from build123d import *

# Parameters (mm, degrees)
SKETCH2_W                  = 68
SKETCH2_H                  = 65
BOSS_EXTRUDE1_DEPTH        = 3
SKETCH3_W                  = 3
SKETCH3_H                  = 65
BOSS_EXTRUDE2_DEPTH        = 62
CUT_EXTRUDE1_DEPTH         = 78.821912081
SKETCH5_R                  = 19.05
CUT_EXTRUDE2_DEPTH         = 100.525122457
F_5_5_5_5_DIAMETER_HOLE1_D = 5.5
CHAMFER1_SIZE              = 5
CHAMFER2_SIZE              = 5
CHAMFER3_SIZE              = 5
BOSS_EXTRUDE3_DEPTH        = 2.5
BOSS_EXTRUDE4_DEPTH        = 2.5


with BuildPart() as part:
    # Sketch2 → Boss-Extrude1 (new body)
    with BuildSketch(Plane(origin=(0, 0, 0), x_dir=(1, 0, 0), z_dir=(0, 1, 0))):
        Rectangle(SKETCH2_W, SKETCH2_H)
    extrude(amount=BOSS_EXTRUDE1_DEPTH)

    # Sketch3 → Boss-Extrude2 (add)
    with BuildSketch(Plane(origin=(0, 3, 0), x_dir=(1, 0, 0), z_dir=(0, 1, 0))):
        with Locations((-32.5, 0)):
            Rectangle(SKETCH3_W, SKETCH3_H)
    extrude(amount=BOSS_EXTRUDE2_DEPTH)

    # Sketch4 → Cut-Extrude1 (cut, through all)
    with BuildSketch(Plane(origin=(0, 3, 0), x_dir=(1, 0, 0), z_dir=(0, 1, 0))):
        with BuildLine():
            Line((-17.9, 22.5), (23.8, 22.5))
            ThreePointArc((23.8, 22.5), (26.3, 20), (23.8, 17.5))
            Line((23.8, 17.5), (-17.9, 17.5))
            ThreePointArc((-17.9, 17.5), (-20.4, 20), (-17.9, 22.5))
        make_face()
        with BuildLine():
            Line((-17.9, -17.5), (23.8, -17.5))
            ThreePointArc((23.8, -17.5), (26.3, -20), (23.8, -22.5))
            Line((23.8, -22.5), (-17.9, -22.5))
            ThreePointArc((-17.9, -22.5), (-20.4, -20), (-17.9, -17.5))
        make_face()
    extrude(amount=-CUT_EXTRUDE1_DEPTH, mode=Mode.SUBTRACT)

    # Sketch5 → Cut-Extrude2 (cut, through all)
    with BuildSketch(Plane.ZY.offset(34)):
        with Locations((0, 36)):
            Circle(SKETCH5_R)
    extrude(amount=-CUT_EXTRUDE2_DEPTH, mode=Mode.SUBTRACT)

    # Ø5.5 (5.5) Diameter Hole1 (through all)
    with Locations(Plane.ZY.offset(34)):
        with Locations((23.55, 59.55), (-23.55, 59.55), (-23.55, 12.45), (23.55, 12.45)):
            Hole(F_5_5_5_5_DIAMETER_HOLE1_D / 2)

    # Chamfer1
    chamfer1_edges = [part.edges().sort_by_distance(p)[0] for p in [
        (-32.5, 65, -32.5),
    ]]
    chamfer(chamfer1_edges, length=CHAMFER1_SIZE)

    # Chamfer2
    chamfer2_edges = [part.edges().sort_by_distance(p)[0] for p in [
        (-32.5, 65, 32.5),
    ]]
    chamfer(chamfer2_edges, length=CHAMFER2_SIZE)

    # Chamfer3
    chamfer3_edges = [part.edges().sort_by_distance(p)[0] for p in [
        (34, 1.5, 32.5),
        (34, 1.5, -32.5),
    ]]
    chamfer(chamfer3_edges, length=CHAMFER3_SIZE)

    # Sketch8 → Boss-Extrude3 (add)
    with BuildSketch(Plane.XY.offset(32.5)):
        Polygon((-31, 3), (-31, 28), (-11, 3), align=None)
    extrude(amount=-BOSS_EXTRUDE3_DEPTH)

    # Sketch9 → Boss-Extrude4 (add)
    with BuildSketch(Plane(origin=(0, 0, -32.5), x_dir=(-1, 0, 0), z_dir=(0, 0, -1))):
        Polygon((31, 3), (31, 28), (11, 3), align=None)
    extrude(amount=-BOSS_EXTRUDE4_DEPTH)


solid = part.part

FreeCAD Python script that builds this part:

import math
import FreeCAD as App
import Part
import Sketcher

V = App.Vector
Q = App.Units.Quantity


def edges_at(feature, points):
    """Names of the edges that pass closest to the given points."""
    edges = feature.Shape.Edges
    near = lambda p: min(range(len(edges)), key=lambda i: edges[i].distToShape(Part.Vertex(*p))[0])
    return sorted({f"Edge{near(p) + 1}" for p in points})


def add_polygon(sketch, points):
    """Adds a closed chain of lines whose ends are joined by coincident constraints."""
    first, n = sketch.GeometryCount, len(points)
    for a, b in zip(points, points[1:] + points[:1]):
        sketch.addGeometry(Part.LineSegment(App.Vector(*a, 0), App.Vector(*b, 0)), False)
    for i in range(n):
        sketch.addConstraint(Sketcher.Constraint("Coincident", first + i, 2, first + (i + 1) % n, 1))

doc = App.newDocument("Part")
params = doc.addObject("Spreadsheet::Sheet", "Params")
for row, (alias, value) in enumerate([
    ("sketch1_width", "68 mm"),
    ("sketch1_height", "65 mm"),
    ("pad1_length", "3 mm"),
    ("sketch2_width", "3 mm"),
    ("sketch2_height", "65 mm"),
    ("pad2_length", "62 mm"),
    ("sketch3_radius", "2.5 mm"),
    ("sketch3_width", "41.7 mm"),
    ("sketch4_diameter", "38.1 mm"),
    ("sketch5_diameter", "5.5 mm"),
    ("hole_diameter", "5.5 mm"),
    ("chamfer_size", "5 mm"),
    ("chamfer2_size", "5 mm"),
    ("chamfer3_size", "5 mm"),
    ("sketch6_width", "20 mm"),
    ("sketch6_height", "25 mm"),
    ("pad3_length", "2.5 mm"),
    ("sketch7_width", "20 mm"),
    ("sketch7_height", "25 mm"),
    ("pad4_length", "2.5 mm"),
], start=1):
    params.set(f"A{row}", alias)
    params.set(f"B{row}", "=" + value)
    params.setAlias(f"B{row}", alias)

body = doc.addObject("PartDesign::Body", "Body")

sketch1 = body.newObject("Sketcher::SketchObject", "Sketch")
sketch1.AttachmentSupport = (doc.getObject("XZ_Plane"), [""])
sketch1.MapMode = "FlatFace"
add_polygon(sketch1, [(-34, -32.5), (-34, 32.5), (34, 32.5), (34, -32.5)])
sketch1.addConstraint([
    Sketcher.Constraint("Vertical", 0),
    Sketcher.Constraint("Horizontal", 1),
    Sketcher.Constraint("Vertical", 2),
    Sketcher.Constraint("Horizontal", 3),
    Sketcher.Constraint("Symmetric", 0, 2, 2, 2, -1, 1),
    Sketcher.Constraint("DistanceX", 1, 1, 1, 2, Q("68 mm")),
    Sketcher.Constraint("DistanceY", 0, 1, 0, 2, Q("65 mm")),
])
sketch1.setExpression("Constraints[9]", "Params.sketch1_width")
sketch1.setExpression("Constraints[10]", "Params.sketch1_height")
pad1 = body.newObject("PartDesign::Pad", "Pad")
pad1.Profile = sketch1
pad1.setExpression("Length", "Params.pad1_length")
pad1.Reversed = True

sketch2 = body.newObject("Sketcher::SketchObject", "Sketch001")
sketch2.AttachmentSupport = (doc.getObject("XZ_Plane"), [""])
sketch2.MapMode = "FlatFace"
sketch2.AttachmentOffset = App.Placement(V(0, 0, -3), App.Rotation())
add_polygon(sketch2, [(-34, -32.5), (-34, 32.5), (-31, 32.5), (-31, -32.5)])
sketch2.addConstraint([
    Sketcher.Constraint("Vertical", 0),
    Sketcher.Constraint("Horizontal", 1),
    Sketcher.Constraint("Vertical", 2),
    Sketcher.Constraint("Horizontal", 3),
    Sketcher.Constraint("DistanceX", 1, 1, 1, 2, Q("3 mm")),
    Sketcher.Constraint("DistanceY", 0, 1, 0, 2, Q("65 mm")),
    Sketcher.Constraint("DistanceX", 0, 2, -1, 1, Q("34 mm")),
    Sketcher.Constraint("DistanceY", -1, 1, 0, 2, Q("32.5 mm")),
])
sketch2.setExpression("Constraints[8]", "Params.sketch2_width")
sketch2.setExpression("Constraints[9]", "Params.sketch2_height")
pad2 = body.newObject("PartDesign::Pad", "Pad001")
pad2.Profile = sketch2
pad2.setExpression("Length", "Params.pad2_length")
pad2.Reversed = True

sketch3 = body.newObject("Sketcher::SketchObject", "Sketch002")
sketch3.AttachmentSupport = (doc.getObject("XZ_Plane"), [""])
sketch3.MapMode = "FlatFace"
sketch3.AttachmentOffset = App.Placement(V(0, 0, -3), App.Rotation())
sketch3.addGeometry([
    Part.LineSegment(V(23.8, -22.5, 0), V(-17.9, -22.5, 0)),
    Part.ArcOfCircle(Part.Circle(V(-17.9, -20, 0), V(0, 0, 1), 2.5), math.radians(90), math.radians(270)),
    Part.LineSegment(V(-17.9, -17.5, 0), V(23.8, -17.5, 0)),
    Part.ArcOfCircle(Part.Circle(V(23.8, -20, 0), V(0, 0, 1), 2.5), math.radians(-90), math.radians(90)),
    Part.LineSegment(V(23.8, 17.5, 0), V(-17.9, 17.5, 0)),
    Part.ArcOfCircle(Part.Circle(V(-17.9, 20, 0), V(0, 0, 1), 2.5), math.radians(90), math.radians(270)),
    Part.LineSegment(V(-17.9, 22.5, 0), V(23.8, 22.5, 0)),
    Part.ArcOfCircle(Part.Circle(V(23.8, 20, 0), V(0, 0, 1), 2.5), math.radians(-90), math.radians(90)),
], False)
sketch3.addConstraint([
    Sketcher.Constraint("Tangent", 0, 2, 1, 2),
    Sketcher.Constraint("Tangent", 1, 1, 2, 1),
    Sketcher.Constraint("Tangent", 2, 2, 3, 2),
    Sketcher.Constraint("Tangent", 3, 1, 0, 1),
    Sketcher.Constraint("Tangent", 4, 2, 5, 2),
    Sketcher.Constraint("Tangent", 5, 1, 6, 1),
    Sketcher.Constraint("Tangent", 6, 2, 7, 2),
    Sketcher.Constraint("Tangent", 7, 1, 4, 1),
    Sketcher.Constraint("Horizontal", 0),
    Sketcher.Constraint("Horizontal", 2),
    Sketcher.Constraint("Horizontal", 4),
    Sketcher.Constraint("Horizontal", 6),
    Sketcher.Constraint("Equal", 3, 5),
    Sketcher.Constraint("Symmetric", 1, 3, 5, 3, -1),
    Sketcher.Constraint("Vertical", 3, 3, 7, 3),
    Sketcher.Constraint("Radius", 1, Q("2.5 mm")),
    Sketcher.Constraint("DistanceX", 0, 2, 0, 1, Q("41.7 mm")),
    Sketcher.Constraint("DistanceY", 1, 3, -1, 1, Q("20 mm")),
    Sketcher.Constraint("DistanceX", 1, 3, -1, 1, Q("17.9 mm")),
])
sketch3.setExpression("Constraints[15]", "Params.sketch3_radius")
sketch3.setExpression("Constraints[16]", "Params.sketch3_width")
pocket1 = body.newObject("PartDesign::Pocket", "Pocket")
pocket1.Profile = sketch3
pocket1.Type = "ThroughAll"
pocket1.Reversed = True

sketch4 = body.newObject("Sketcher::SketchObject", "Sketch003")
sketch4.AttachmentSupport = (doc.getObject("YZ_Plane"), [""])
sketch4.MapMode = "FlatFace"
sketch4.AttachmentOffset = App.Placement(V(0, 0, -34), App.Rotation())
sketch4.addGeometry(Part.Circle(V(36, 0, 0), V(0, 0, 1), 19.05), False)
sketch4.addConstraint([
    Sketcher.Constraint("PointOnObject", 0, 3, -1),
    Sketcher.Constraint("Diameter", 0, Q("38.1 mm")),
    Sketcher.Constraint("DistanceX", -1, 1, 0, 3, Q("36 mm")),
])
sketch4.setExpression("Constraints[1]", "Params.sketch4_diameter")
pocket2 = body.newObject("PartDesign::Pocket", "Pocket001")
pocket2.Profile = sketch4
pocket2.Type = "ThroughAll"
pocket2.Reversed = True

sketch5 = body.newObject("Sketcher::SketchObject", "Sketch004")
sketch5.AttachmentSupport = (doc.getObject("YZ_Plane"), [""])
sketch5.MapMode = "FlatFace"
sketch5.AttachmentOffset = App.Placement(V(0, 0, -34), App.Rotation())
sketch5.addGeometry([
    Part.Circle(V(59.55, 23.55, 0), V(0, 0, 1), 2.75),
    Part.Circle(V(59.55, -23.55, 0), V(0, 0, 1), 2.75),
    Part.Circle(V(12.45, -23.55, 0), V(0, 0, 1), 2.75),
    Part.Circle(V(12.45, 23.55, 0), V(0, 0, 1), 2.75),
], False)
sketch5.addConstraint([
    Sketcher.Constraint("Equal", 0, 1),
    Sketcher.Constraint("Equal", 1, 2),
    Sketcher.Constraint("Equal", 2, 3),
    Sketcher.Constraint("Symmetric", 0, 3, 1, 3, -1),
    Sketcher.Constraint("Symmetric", 2, 3, 3, 3, -1),
    Sketcher.Constraint("Horizontal", 1, 3, 2, 3),
    Sketcher.Constraint("Diameter", 0, Q("5.5 mm")),
    Sketcher.Constraint("DistanceY", 1, 3, 0, 3, Q("47.1 mm")),
    Sketcher.Constraint("DistanceX", 2, 3, 1, 3, Q("47.1 mm")),
    Sketcher.Constraint("DistanceX", -1, 1, 0, 3, Q("59.55 mm")),
])
sketch5.setExpression("Constraints[6]", "Params.sketch5_diameter")
doc.recompute()
hole = body.newObject("PartDesign::Hole", "Hole")
hole.Profile = sketch5
hole.ThreadType = "None"
hole.setExpression("Diameter", "Params.hole_diameter")
hole.DepthType = "ThroughAll"
hole.Reversed = True
doc.recompute()

chamfer = body.newObject("PartDesign::Chamfer", "Chamfer")
chamfer.Base = (hole, edges_at(hole, [(-32.5, 65, -32.5)]))
chamfer.setExpression("Size", "Params.chamfer_size")
doc.recompute()

chamfer2 = body.newObject("PartDesign::Chamfer", "Chamfer001")
chamfer2.Base = (chamfer, edges_at(chamfer, [(-32.5, 65, 32.5)]))
chamfer2.setExpression("Size", "Params.chamfer2_size")
doc.recompute()

chamfer3 = body.newObject("PartDesign::Chamfer", "Chamfer002")
chamfer3.Base = (chamfer2, edges_at(chamfer2, [(34, 1.5, 32.5), (34, 1.5, -32.5)]))
chamfer3.setExpression("Size", "Params.chamfer3_size")

sketch6 = body.newObject("Sketcher::SketchObject", "Sketch005")
sketch6.AttachmentSupport = (doc.getObject("XY_Plane"), [""])
sketch6.MapMode = "FlatFace"
sketch6.AttachmentOffset = App.Placement(V(0, 0, 32.5), App.Rotation())
add_polygon(sketch6, [(-31, 28), (-31, 3), (-11, 3)])
sketch6.addConstraint([
    Sketcher.Constraint("Vertical", 0),
    Sketcher.Constraint("Horizontal", 1),
    Sketcher.Constraint("DistanceX", 1, 1, 1, 2, Q("20 mm")),
    Sketcher.Constraint("DistanceY", 0, 2, 0, 1, Q("25 mm")),
    Sketcher.Constraint("DistanceX", 0, 2, -1, 1, Q("31 mm")),
    Sketcher.Constraint("DistanceY", -1, 1, 0, 2, Q("3 mm")),
])
sketch6.setExpression("Constraints[5]", "Params.sketch6_width")
sketch6.setExpression("Constraints[6]", "Params.sketch6_height")
pad3 = body.newObject("PartDesign::Pad", "Pad002")
pad3.Profile = sketch6
pad3.setExpression("Length", "Params.pad3_length")
pad3.Reversed = True

sketch7 = body.newObject("Sketcher::SketchObject", "Sketch006")
sketch7.AttachmentSupport = (doc.getObject("XY_Plane"), [""])
sketch7.MapMode = "FlatFace"
sketch7.AttachmentOffset = App.Placement(V(0, 0, -32.5), App.Rotation())
add_polygon(sketch7, [(-31, 3), (-31, 28), (-11, 3)])
sketch7.addConstraint([
    Sketcher.Constraint("Vertical", 0),
    Sketcher.Constraint("Horizontal", 2),
    Sketcher.Constraint("DistanceX", 2, 2, 2, 1, Q("20 mm")),
    Sketcher.Constraint("DistanceY", 0, 1, 0, 2, Q("25 mm")),
    Sketcher.Constraint("DistanceX", 0, 2, -1, 1, Q("31 mm")),
    Sketcher.Constraint("DistanceY", -1, 1, 0, 2, Q("28 mm")),
])
sketch7.setExpression("Constraints[5]", "Params.sketch7_width")
sketch7.setExpression("Constraints[6]", "Params.sketch7_height")
pad4 = body.newObject("PartDesign::Pad", "Pad003")
pad4.Profile = sketch7
pad4.setExpression("Length", "Params.pad4_length")

doc.recompute()
